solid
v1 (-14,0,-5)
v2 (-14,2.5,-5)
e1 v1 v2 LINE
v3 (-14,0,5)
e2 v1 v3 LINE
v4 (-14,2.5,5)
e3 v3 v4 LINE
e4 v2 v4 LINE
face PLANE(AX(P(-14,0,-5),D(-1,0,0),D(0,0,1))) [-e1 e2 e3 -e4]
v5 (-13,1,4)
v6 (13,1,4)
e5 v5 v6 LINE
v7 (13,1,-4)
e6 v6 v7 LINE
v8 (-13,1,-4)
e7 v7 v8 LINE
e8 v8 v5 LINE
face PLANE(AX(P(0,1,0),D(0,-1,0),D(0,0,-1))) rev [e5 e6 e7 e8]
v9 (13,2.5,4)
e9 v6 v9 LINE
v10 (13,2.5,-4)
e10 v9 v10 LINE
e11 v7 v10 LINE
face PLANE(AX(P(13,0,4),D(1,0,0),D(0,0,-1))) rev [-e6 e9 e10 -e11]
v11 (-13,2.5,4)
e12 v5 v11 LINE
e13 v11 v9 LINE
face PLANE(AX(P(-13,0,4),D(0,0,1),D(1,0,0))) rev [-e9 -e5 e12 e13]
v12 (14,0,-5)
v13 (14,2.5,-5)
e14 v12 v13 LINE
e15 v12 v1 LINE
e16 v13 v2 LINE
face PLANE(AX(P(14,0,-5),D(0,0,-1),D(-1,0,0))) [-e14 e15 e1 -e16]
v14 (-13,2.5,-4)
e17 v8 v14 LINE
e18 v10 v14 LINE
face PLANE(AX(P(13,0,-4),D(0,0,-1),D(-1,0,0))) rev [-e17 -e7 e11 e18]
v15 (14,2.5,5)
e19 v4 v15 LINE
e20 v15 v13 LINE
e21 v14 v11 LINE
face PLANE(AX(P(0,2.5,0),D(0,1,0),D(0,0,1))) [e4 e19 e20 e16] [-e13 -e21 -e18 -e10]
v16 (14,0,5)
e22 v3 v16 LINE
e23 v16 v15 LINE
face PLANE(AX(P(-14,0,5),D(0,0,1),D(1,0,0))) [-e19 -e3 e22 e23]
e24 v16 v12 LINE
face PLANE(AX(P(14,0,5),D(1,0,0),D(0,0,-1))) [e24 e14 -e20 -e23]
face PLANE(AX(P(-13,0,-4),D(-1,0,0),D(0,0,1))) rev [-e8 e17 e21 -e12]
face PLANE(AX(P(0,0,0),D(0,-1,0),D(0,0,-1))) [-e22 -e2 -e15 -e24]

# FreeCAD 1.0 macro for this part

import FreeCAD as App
import Part
import Sketcher


def add_polygon(sketch, points):
    """Adds a closed chain of lines whose ends are joined by coincident constraints."""
    first, n = sketch.GeometryCount, len(points)
    for a, b in zip(points, points[1:] + points[:1]):
        sketch.addGeometry(Part.LineSegment(App.Vector(*a, 0), App.Vector(*b, 0)), False)
    for i in range(n):
        sketch.addConstraint(Sketcher.Constraint("Coincident", first + i, 2, first + (i + 1) % n, 1))

doc = App.newDocument("Part")
body = doc.addObject("PartDesign::Body", "Body")

sketch1 = doc.addObject("Sketcher::SketchObject", "Sketch")
body.addObject(sketch1)
sketch1.AttachmentSupport = (doc.XZ_Plane, [""])
sketch1.MapMode = "FlatFace"
add_polygon(sketch1, [(-13, -4), (-13, 4), (13, 4), (13, -4)])
sketch1.addConstraint([
    Sketcher.Constraint("Vertical", 0),
    Sketcher.Constraint("Horizontal", 1),
    Sketcher.Constraint("Vertical", 2),
    Sketcher.Constraint("Horizontal", 3),
    Sketcher.Constraint("Symmetric", 0, 2, 2, 2, -1, 1),
    Sketcher.Constraint("DistanceX", 1, 1, 1, 2, 26.0),
    Sketcher.Constraint("DistanceY", 0, 1, 0, 2, 8.0),
])
pad1 = doc.addObject("PartDesign::Pad", "Pad")
body.addObject(pad1)
pad1.Profile = sketch1
pad1.Length = 1
pad1.Reversed = True

sketch2 = doc.addObject("Sketcher::SketchObject", "Sketch001")
body.addObject(sketch2)
sketch2.AttachmentSupport = (doc.XZ_Plane, [""])
sketch2.MapMode = "FlatFace"
sketch2.AttachmentOffset = App.Placement(App.Vector(0, 0, -1), App.Rotation())
add_polygon(sketch2, [(-14, -5), (-14, 5), (14, 5), (14, -5)])
add_polygon(sketch2, [(13, 4), (-13, 4), (-13, -4), (13, -4)])
sketch2.addConstraint([
    Sketcher.Constraint("Vertical", 0),
    Sketcher.Constraint("Horizontal", 1),
    Sketcher.Constraint("Vertical", 2),
    Sketcher.Constraint("Horizontal", 3),
    Sketcher.Constraint("Horizontal", 4),
    Sketcher.Constraint("Vertical", 5),
    Sketcher.Constraint("Horizontal", 6),
    Sketcher.Constraint("Vertical", 7),
    Sketcher.Constraint("Symmetric", 0, 2, 2, 2, -1, 1),
    Sketcher.Constraint("Symmetric", 4, 2, 6, 2, -1, 1),
    Sketcher.Constraint("DistanceX", 1, 1, 1, 2, 28.0),
    Sketcher.Constraint("DistanceX", 4, 2, 4, 1, 26.0),
    Sketcher.Constraint("DistanceY", 0, 1, 0, 2, 10.0),
    Sketcher.Constraint("DistanceY", 5, 2, 5, 1, 8.0),
])
pad2 = doc.addObject("PartDesign::Pad", "Pad001")
body.addObject(pad2)
pad2.Profile = sketch2
pad2.Type = "TwoLengths"
pad2.Length = 1.5
pad2.Length2 = 1
pad2.Reversed = True

doc.recompute()
